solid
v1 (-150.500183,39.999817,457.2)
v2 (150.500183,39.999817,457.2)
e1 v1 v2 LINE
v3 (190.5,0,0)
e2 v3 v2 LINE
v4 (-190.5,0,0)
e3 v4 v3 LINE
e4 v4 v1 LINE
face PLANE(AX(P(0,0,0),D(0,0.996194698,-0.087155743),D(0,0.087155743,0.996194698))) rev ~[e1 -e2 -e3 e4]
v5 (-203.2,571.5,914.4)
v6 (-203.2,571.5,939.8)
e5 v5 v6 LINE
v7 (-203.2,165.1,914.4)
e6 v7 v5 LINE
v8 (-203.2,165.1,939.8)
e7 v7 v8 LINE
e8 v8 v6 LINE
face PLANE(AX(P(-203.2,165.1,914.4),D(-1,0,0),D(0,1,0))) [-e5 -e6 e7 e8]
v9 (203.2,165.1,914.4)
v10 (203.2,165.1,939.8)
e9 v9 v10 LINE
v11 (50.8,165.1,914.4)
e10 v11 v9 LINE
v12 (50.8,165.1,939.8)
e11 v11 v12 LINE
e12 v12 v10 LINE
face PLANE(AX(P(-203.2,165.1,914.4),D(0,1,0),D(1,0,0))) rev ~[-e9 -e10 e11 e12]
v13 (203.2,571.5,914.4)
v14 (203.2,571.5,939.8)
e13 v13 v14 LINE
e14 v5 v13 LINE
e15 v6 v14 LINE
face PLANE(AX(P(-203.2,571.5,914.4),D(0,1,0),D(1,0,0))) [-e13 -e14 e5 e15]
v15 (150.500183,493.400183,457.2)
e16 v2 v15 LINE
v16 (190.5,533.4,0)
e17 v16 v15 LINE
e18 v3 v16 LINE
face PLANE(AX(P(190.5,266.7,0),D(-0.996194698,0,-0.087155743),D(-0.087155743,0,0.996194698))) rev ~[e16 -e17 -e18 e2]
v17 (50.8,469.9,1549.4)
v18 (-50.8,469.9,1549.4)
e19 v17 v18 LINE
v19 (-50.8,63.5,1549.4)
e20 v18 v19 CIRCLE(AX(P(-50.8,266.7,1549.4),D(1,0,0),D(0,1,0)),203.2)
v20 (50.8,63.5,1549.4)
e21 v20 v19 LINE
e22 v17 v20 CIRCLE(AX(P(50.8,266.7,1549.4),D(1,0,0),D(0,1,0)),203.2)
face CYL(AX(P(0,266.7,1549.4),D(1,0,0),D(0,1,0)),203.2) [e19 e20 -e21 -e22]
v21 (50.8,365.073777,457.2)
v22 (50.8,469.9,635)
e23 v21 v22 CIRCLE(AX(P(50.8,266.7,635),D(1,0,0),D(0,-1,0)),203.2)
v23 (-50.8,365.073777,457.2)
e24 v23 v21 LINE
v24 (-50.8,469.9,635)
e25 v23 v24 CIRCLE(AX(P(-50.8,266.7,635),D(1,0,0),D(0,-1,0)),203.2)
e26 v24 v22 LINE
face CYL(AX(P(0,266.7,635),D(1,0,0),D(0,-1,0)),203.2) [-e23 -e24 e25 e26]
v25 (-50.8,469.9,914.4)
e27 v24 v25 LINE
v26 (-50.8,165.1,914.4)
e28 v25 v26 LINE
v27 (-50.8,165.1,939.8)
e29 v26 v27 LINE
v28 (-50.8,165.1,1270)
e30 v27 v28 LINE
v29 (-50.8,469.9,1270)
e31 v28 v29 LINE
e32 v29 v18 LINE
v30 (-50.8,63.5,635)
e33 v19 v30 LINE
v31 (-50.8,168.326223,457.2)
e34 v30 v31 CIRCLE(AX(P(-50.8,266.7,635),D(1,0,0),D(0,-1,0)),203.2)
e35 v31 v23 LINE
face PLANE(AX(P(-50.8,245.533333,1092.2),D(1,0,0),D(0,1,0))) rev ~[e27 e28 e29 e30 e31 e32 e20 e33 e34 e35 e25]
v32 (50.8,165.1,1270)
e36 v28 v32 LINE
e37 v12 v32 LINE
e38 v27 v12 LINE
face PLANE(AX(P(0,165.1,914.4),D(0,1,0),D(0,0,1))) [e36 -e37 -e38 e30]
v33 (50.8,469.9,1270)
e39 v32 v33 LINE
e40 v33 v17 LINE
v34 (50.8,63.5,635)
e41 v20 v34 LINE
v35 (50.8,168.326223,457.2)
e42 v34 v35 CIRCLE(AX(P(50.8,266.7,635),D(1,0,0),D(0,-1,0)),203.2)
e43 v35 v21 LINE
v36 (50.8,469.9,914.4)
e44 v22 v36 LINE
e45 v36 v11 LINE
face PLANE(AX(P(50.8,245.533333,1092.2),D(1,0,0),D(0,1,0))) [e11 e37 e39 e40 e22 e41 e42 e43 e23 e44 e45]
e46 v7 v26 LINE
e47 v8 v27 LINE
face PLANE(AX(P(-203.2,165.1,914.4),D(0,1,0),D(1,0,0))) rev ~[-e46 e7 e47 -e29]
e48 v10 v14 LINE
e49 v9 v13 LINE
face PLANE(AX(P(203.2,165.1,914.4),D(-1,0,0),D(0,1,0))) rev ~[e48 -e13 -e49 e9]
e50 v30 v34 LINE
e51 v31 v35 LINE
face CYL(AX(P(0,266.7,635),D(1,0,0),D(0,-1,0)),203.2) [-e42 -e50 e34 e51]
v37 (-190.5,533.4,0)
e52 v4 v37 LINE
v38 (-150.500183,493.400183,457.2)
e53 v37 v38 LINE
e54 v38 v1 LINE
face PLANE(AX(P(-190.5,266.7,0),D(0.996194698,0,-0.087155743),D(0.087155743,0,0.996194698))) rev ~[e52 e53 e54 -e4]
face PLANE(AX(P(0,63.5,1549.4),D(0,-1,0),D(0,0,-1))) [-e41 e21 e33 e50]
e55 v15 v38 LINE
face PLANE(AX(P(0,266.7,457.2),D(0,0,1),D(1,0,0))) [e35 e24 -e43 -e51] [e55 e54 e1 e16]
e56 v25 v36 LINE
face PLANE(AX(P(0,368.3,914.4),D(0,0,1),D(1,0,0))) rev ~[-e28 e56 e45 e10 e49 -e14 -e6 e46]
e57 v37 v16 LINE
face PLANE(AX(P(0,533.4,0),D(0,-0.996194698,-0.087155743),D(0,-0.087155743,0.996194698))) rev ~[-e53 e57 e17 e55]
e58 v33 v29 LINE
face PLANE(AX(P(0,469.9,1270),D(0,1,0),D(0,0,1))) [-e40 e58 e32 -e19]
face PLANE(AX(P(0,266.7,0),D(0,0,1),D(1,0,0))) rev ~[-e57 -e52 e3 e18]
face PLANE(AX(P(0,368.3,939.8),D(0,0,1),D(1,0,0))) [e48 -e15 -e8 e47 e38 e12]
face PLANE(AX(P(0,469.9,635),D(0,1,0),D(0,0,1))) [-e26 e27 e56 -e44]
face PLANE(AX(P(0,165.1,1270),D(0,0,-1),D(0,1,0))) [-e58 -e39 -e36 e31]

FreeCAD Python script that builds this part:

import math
import FreeCAD as App
import Part
import Sketcher
Q = App.Units.Quantity

doc = App.newDocument("Part")
body = doc.addObject("PartDesign::Body", "Body")

sketch1 = body.newObject("Sketcher::SketchObject", "Sketch")
sketch1.AttachmentSupport = (doc.getObject("XY_Plane"), [""])
sketch1.MapMode = "FlatFace"
sketch1.addGeometry(Part.LineSegment(App.Vector(-190.5, 533.4, 0), App.Vector(-190.5, 0, 0)), False)
sketch1.addGeometry(Part.LineSegment(App.Vector(-190.5, 0, 0), App.Vector(190.5, 0, 0)), False)
sketch1.addGeometry(Part.LineSegment(App.Vector(190.5, 0, 0), App.Vector(190.5, 533.4, 0)), False)
sketch1.addGeometry(Part.LineSegment(App.Vector(190.5, 533.4, 0), App.Vector(-190.5, 533.4, 0)), False)
sketch1.addConstraint(Sketcher.Constraint("Coincident", 0, 2, 1, 1))
sketch1.addConstraint(Sketcher.Constraint("Coincident", 1, 2, 2, 1))
sketch1.addConstraint(Sketcher.Constraint("Coincident", 2, 2, 3, 1))
sketch1.addConstraint(Sketcher.Constraint("Coincident", 3, 2, 0, 1))
sketch1.addConstraint(Sketcher.Constraint("Vertical", 0))
sketch1.addConstraint(Sketcher.Constraint("Horizontal", 1))
sketch1.addConstraint(Sketcher.Constraint("Vertical", 2))
sketch1.addConstraint(Sketcher.Constraint("Horizontal", 3))
sketch1.addConstraint(Sketcher.Constraint("Symmetric", 0, 2, 1, 2, -1, 1))
sketch1.addConstraint(Sketcher.Constraint("DistanceX", 1, 1, 1, 2, Q("15 in")))
sketch1.addConstraint(Sketcher.Constraint("DistanceY", 0, 2, 0, 1, Q("21 in")))
pad1 = body.newObject("PartDesign::Pad", "Pad")
pad1.Profile = sketch1
pad1.Length = Q("18 in")
pad1.TaperAngle = -5

sketch2 = body.newObject("Sketcher::SketchObject", "Sketch001")
sketch2.AttachmentSupport = (doc.getObject("YZ_Plane"), [""])
sketch2.MapMode = "FlatFace"
sketch2.addGeometry(Part.LineSegment(App.Vector(63.5, 1549.4, 0), App.Vector(63.5, 635, 0)), False)
sketch2.addGeometry(Part.ArcOfCircle(Part.Circle(App.Vector(266.7, 635, 0), App.Vector(0, 0, 1), 203.2), math.radians(180), math.radians(360)), False)
sketch2.addGeometry(Part.LineSegment(App.Vector(469.9, 635, 0), App.Vector(469.9, 914.4, 0)), False)
sketch2.addGeometry(Part.LineSegment(App.Vector(469.9, 914.4, 0), App.Vector(165.1, 914.4, 0)), False)
sketch2.addGeometry(Part.LineSegment(App.Vector(165.1, 914.4, 0), App.Vector(165.1, 1270, 0)), False)
sketch2.addGeometry(Part.LineSegment(App.Vector(165.1, 1270, 0), App.Vector(469.9, 1270, 0)), False)
sketch2.addGeometry(Part.LineSegment(App.Vector(469.9, 1270, 0), App.Vector(469.9, 1549.4, 0)), False)
sketch2.addGeometry(Part.ArcOfCircle(Part.Circle(App.Vector(266.7, 1549.4, 0), App.Vector(0, 0, 1), 203.2), math.radians(0), math.radians(180)), False)
sketch2.addConstraint(Sketcher.Constraint("Tangent", 0, 2, 1, 1))
sketch2.addConstraint(Sketcher.Constraint("Tangent", 1, 2, 2, 1))
sketch2.addConstraint(Sketcher.Constraint("Coincident", 2, 2, 3, 1))
sketch2.addConstraint(Sketcher.Constraint("Coincident", 3, 2, 4, 1))
sketch2.addConstraint(Sketcher.Constraint("Coincident", 4, 2, 5, 1))
sketch2.addConstraint(Sketcher.Constraint("Coincident", 5, 2, 6, 1))
sketch2.addConstraint(Sketcher.Constraint("Tangent", 6, 2, 7, 1))
sketch2.addConstraint(Sketcher.Constraint("Tangent", 7, 2, 0, 1))
sketch2.addConstraint(Sketcher.Constraint("Vertical", 0))
sketch2.addConstraint(Sketcher.Constraint("Vertical", 2))
sketch2.addConstraint(Sketcher.Constraint("Horizontal", 3))
sketch2.addConstraint(Sketcher.Constraint("Vertical", 4))
sketch2.addConstraint(Sketcher.Constraint("Horizontal", 5))
sketch2.addConstraint(Sketcher.Constraint("Vertical", 6))
sketch2.addConstraint(Sketcher.Constraint("Equal", 1, 7))
sketch2.addConstraint(Sketcher.Constraint("Equal", 2, 6))
sketch2.addConstraint(Sketcher.Constraint("Radius", 1, Q("8 in")))
sketch2.addConstraint(Sketcher.Constraint("DistanceX", 3, 2, 3, 1, Q("12 in")))
sketch2.addConstraint(Sketcher.Constraint("DistanceY", 0, 2, 0, 1, Q("36 in")))
sketch2.addConstraint(Sketcher.Constraint("DistanceY", 2, 1, 2, 2, Q("11 in")))
sketch2.addConstraint(Sketcher.Constraint("DistanceY", -1, 1, 1, 3, Q("25 in")))
sketch2.addConstraint(Sketcher.Constraint("DistanceX", -1, 1, 1, 3, Q("10.5 in")))
pad2 = body.newObject("PartDesign::Pad", "Pad001")
pad2.Profile = sketch2
pad2.Length = Q("4 in")
pad2.Midplane = True

sketch3 = body.newObject("Sketcher::SketchObject", "Sketch002")
sketch3.AttachmentSupport = (doc.getObject("XY_Plane"), [""])
sketch3.MapMode = "FlatFace"
sketch3.AttachmentOffset = App.Placement(App.Vector(0, 0, 36 * 25.4), App.Rotation())
sketch3.addGeometry(Part.LineSegment(App.Vector(-203.2, 571.5, 0), App.Vector(-203.2, 165.1, 0)), False)
sketch3.addGeometry(Part.LineSegment(App.Vector(-203.2, 165.1, 0), App.Vector(203.2, 165.1, 0)), False)
sketch3.addGeometry(Part.LineSegment(App.Vector(203.2, 165.1, 0), App.Vector(203.2, 571.5, 0)), False)
sketch3.addGeometry(Part.LineSegment(App.Vector(203.2, 571.5, 0), App.Vector(-203.2, 571.5, 0)), False)
sketch3.addConstraint(Sketcher.Constraint("Coincident", 0, 2, 1, 1))
sketch3.addConstraint(Sketcher.Constraint("Coincident", 1, 2, 2, 1))
sketch3.addConstraint(Sketcher.Constraint("Coincident", 2, 2, 3, 1))
sketch3.addConstraint(Sketcher.Constraint("Coincident", 3, 2, 0, 1))
sketch3.addConstraint(Sketcher.Constraint("Vertical", 0))
sketch3.addConstraint(Sketcher.Constraint("Horizontal", 1))
sketch3.addConstraint(Sketcher.Constraint("Vertical", 2))
sketch3.addConstraint(Sketcher.Constraint("Horizontal", 3))
sketch3.addConstraint(Sketcher.Constraint("Equal", 3, 0))
sketch3.addConstraint(Sketcher.Constraint("DistanceX", 1, 1, 1, 2, Q("16 in")))
sketch3.addConstraint(Sketcher.Constraint("DistanceX", 0, 2, -1, 1, Q("8 in")))
sketch3.addConstraint(Sketcher.Constraint("DistanceY", -1, 1, 0, 2, Q("6.5 in")))
pad3 = body.newObject("PartDesign::Pad", "Pad002")
pad3.Profile = sketch3
pad3.Length = Q("1 in")

doc.recompute()
